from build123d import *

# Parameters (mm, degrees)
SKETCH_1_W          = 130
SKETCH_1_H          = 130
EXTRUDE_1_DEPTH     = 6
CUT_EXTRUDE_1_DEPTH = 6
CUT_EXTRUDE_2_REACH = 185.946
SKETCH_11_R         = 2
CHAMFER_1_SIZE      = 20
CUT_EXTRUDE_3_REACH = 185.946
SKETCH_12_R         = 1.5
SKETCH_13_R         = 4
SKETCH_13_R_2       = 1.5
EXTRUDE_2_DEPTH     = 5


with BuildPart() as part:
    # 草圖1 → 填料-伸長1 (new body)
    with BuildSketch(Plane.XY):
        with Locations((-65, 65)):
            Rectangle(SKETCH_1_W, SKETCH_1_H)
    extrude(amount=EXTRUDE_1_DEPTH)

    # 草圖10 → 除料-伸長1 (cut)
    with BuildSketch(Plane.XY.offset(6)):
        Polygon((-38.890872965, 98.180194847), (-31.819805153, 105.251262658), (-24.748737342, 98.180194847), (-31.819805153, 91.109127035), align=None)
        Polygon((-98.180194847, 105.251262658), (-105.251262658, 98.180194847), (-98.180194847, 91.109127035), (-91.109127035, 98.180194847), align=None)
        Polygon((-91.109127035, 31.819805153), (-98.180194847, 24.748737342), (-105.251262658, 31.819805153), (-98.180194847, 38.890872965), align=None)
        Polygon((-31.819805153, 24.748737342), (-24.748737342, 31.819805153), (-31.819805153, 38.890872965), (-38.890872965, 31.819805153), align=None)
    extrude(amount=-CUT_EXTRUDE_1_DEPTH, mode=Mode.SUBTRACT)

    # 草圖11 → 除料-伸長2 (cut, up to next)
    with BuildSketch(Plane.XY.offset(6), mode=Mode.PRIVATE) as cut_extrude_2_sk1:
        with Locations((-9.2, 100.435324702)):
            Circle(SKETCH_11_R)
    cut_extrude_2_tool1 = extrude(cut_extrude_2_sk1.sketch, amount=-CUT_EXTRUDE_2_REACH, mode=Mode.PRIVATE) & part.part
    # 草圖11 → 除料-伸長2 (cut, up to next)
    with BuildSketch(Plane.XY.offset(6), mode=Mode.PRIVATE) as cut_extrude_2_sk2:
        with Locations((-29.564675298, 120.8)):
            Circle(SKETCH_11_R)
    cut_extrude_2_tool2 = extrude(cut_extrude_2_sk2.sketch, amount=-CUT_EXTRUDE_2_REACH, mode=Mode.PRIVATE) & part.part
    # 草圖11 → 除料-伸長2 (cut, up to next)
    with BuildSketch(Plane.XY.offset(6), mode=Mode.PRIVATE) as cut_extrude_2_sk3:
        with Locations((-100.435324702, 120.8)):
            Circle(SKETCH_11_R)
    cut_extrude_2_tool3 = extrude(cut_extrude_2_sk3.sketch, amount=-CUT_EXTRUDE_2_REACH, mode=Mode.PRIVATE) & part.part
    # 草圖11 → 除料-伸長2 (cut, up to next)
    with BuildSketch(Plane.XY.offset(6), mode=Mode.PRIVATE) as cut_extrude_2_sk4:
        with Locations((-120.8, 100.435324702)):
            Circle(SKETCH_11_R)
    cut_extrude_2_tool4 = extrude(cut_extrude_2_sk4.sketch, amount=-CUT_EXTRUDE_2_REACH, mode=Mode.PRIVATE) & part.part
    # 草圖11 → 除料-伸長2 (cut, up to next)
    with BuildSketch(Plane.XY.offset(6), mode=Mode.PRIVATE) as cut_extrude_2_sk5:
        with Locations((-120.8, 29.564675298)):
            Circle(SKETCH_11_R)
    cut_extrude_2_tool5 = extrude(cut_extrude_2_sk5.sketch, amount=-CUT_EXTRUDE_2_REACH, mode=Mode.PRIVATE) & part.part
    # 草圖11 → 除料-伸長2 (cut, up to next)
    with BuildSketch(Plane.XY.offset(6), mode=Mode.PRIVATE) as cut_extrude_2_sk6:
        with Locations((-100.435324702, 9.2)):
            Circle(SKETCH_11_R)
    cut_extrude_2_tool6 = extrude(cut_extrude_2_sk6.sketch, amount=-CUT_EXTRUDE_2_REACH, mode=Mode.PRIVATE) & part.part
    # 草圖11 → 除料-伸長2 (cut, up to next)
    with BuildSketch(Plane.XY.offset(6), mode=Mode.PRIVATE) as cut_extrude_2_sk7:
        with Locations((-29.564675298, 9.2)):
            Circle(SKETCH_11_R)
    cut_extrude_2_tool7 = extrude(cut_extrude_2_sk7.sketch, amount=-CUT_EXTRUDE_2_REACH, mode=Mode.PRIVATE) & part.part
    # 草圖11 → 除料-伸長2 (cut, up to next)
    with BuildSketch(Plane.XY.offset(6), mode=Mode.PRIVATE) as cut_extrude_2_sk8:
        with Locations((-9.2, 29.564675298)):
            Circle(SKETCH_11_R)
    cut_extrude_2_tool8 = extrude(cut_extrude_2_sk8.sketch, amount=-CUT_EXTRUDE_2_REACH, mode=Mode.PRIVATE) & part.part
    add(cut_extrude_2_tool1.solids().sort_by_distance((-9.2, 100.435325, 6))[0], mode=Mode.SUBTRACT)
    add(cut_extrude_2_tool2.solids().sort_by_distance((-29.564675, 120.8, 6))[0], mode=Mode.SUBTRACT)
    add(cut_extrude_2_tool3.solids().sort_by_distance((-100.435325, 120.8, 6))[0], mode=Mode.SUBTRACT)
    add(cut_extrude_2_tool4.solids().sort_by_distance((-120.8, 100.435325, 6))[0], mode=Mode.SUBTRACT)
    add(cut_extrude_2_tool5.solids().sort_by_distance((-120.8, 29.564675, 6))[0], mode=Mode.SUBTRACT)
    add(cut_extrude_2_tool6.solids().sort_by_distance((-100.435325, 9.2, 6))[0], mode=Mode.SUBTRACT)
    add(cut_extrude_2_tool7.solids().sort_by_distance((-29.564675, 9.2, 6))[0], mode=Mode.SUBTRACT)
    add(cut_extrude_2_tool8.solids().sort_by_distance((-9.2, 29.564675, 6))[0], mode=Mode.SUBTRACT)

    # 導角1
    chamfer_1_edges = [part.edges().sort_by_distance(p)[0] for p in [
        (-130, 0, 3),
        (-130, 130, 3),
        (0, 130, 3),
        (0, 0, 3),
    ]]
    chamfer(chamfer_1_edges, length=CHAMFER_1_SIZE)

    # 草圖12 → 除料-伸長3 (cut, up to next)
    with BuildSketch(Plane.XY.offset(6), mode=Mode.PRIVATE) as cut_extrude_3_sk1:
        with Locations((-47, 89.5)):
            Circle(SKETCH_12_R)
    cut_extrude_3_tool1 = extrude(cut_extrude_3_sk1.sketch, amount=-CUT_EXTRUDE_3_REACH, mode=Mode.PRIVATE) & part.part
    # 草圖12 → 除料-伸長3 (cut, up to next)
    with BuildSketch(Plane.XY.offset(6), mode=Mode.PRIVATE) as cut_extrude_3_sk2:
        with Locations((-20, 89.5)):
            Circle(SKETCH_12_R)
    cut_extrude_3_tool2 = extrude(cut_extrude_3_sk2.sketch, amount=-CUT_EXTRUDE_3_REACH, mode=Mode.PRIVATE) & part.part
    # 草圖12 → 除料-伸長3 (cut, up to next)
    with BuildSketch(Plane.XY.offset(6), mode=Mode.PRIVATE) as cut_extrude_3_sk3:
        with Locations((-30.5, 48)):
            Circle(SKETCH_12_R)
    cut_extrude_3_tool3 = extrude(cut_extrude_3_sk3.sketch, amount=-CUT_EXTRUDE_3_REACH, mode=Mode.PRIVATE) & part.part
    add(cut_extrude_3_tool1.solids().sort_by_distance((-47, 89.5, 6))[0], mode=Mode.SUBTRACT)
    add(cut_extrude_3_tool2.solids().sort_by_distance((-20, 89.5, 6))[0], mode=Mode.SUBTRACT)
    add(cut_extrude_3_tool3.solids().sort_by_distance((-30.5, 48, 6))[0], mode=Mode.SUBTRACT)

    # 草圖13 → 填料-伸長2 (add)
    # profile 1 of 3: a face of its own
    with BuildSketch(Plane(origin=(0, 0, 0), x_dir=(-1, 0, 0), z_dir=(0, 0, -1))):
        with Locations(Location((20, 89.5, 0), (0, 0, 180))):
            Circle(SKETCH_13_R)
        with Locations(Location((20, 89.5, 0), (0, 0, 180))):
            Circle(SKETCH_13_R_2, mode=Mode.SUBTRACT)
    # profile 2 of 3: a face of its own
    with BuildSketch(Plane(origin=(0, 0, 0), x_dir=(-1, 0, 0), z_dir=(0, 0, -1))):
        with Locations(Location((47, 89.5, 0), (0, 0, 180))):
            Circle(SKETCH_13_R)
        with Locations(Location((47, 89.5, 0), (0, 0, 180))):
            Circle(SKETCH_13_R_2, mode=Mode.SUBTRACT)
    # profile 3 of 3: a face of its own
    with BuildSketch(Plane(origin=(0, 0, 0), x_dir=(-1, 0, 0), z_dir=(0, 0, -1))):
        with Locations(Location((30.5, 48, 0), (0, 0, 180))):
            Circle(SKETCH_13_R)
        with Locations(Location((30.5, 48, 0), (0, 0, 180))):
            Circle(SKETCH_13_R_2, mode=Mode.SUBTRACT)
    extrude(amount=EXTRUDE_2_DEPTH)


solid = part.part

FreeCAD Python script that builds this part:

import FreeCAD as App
import Part
import Sketcher

V = App.Vector


def edges_at(feature, points):
    """Names of the edges that pass closest to the given points."""
    edges = feature.Shape.Edges
    near = lambda p: min(range(len(edges)), key=lambda i: edges[i].distToShape(Part.Vertex(*p))[0])
    return sorted({f"Edge{near(p) + 1}" for p in points})

doc = App.newDocument("Part")
params = doc.addObject("Spreadsheet::Sheet", "Params")
for row, (alias, value) in enumerate([
    ("sketch1_width", "130 mm"),
    ("pad1_length", "6 mm"),
    ("sketch2_length", "10 mm"),
    ("pocket1_length", "6 mm"),
    ("sketch3_diameter", "4 mm"),
    ("sketch4_diameter", "4 mm"),
    ("sketch5_diameter", "4 mm"),
    ("sketch6_diameter", "4 mm"),
    ("sketch7_diameter", "4 mm"),
    ("sketch8_diameter", "4 mm"),
    ("sketch9_diameter", "4 mm"),
    ("sketch10_diameter", "4 mm"),
    ("chamfer_size", "20 mm"),
    ("sketch11_diameter", "3 mm"),
    ("sketch12_diameter", "3 mm"),
    ("sketch13_diameter", "3 mm"),
    ("sketch14_diameter", "8 mm"),
    ("sketch14_diameter2", "3 mm"),
    ("pad2_length", "5 mm"),
], start=1):
    params.set(f"A{row}", alias)
    params.set(f"B{row}", "=" + value)
    params.setAlias(f"B{row}", alias)

body = doc.addObject("PartDesign::Body", "Body")

sketch1 = body.newObject("Sketcher::SketchObject", "Sketch")
sketch1.AttachmentSupport = (doc.getObject("XY_Plane"), [""])
sketch1.MapMode = "FlatFace"
sketch1.addGeometry(Part.LineSegment(V(-130, 130, 0), V(-130, 0, 0)), False)
sketch1.addGeometry(Part.LineSegment(V(-130, 0, 0), V(0, 0, 0)), False)
sketch1.addGeometry(Part.LineSegment(V(0, 0, 0), V(0, 130, 0)), False)
sketch1.addGeometry(Part.LineSegment(V(0, 130, 0), V(-130, 130, 0)), False)
sketch1.addConstraint(Sketcher.Constraint("Coincident", 0, 2, 1, 1))
sketch1.addConstraint(Sketcher.Constraint("Coincident", 1, 2, 2, 1))
sketch1.addConstraint(Sketcher.Constraint("Coincident", 2, 2, 3, 1))
sketch1.addConstraint(Sketcher.Constraint("Coincident", 3, 2, 0, 1))
sketch1.addConstraint(Sketcher.Constraint("Vertical", 0))
sketch1.addConstraint(Sketcher.Constraint("Horizontal", 1))
sketch1.addConstraint(Sketcher.Constraint("Vertical", 2))
sketch1.addConstraint(Sketcher.Constraint("Horizontal", 3))
sketch1.addConstraint(Sketcher.Constraint("Coincident", 1, 2, -1, 1))
sketch1.addConstraint(Sketcher.Constraint("Equal", 3, 0))
sketch1.addConstraint(Sketcher.Constraint("DistanceX", 1, 1, 1, 2, 130.0))
sketch1.setExpression("Constraints[10]", "Params.sketch1_width")
pad1 = body.newObject("PartDesign::Pad", "Pad")
pad1.Profile = sketch1
pad1.setExpression("Length", "Params.pad1_length")

sketch2 = body.newObject("Sketcher::SketchObject", "Sketch001")
sketch2.AttachmentSupport = (doc.getObject("XY_Plane"), [""])
sketch2.MapMode = "FlatFace"
sketch2.AttachmentOffset = App.Placement(V(0, 0, 6), App.Rotation())
sketch2.addGeometry(Part.LineSegment(V(-32, 105, 0), V(-39, 98, 0)), False)
sketch2.addGeometry(Part.LineSegment(V(-39, 98, 0), V(-32, 91, 0)), False)
sketch2.addGeometry(Part.LineSegment(V(-32, 91, 0), V(-25, 98, 0)), False)
sketch2.addGeometry(Part.LineSegment(V(-25, 98, 0), V(-32, 105, 0)), False)
sketch2.addGeometry(Part.LineSegment(V(-98, 105, 0), V(-105, 98, 0)), False)
sketch2.addGeometry(Part.LineSegment(V(-105, 98, 0), V(-98, 91, 0)), False)
sketch2.addGeometry(Part.LineSegment(V(-98, 91, 0), V(-91, 98, 0)), False)
sketch2.addGeometry(Part.LineSegment(V(-91, 98, 0), V(-98, 105, 0)), False)
sketch2.addGeometry(Part.LineSegment(V(-98, 25, 0), V(-91, 32, 0)), False)
sketch2.addGeometry(Part.LineSegment(V(-91, 32, 0), V(-98, 39, 0)), False)
sketch2.addGeometry(Part.LineSegment(V(-98, 39, 0), V(-105, 32, 0)), False)
sketch2.addGeometry(Part.LineSegment(V(-105, 32, 0), V(-98, 25, 0)), False)
sketch2.addGeometry(Part.LineSegment(V(-32, 25, 0), V(-25, 32, 0)), False)
sketch2.addGeometry(Part.LineSegment(V(-25, 32, 0), V(-32, 39, 0)), False)
sketch2.addGeometry(Part.LineSegment(V(-32, 39, 0), V(-39, 32, 0)), False)
sketch2.addGeometry(Part.LineSegment(V(-39, 32, 0), V(-32, 25, 0)), False)
sketch2.addConstraint(Sketcher.Constraint("Coincident", 0, 2, 1, 1))
sketch2.addConstraint(Sketcher.Constraint("Coincident", 1, 2, 2, 1))
sketch2.addConstraint(Sketcher.Constraint("Coincident", 2, 2, 3, 1))
sketch2.addConstraint(Sketcher.Constraint("Coincident", 3, 2, 0, 1))
sketch2.addConstraint(Sketcher.Constraint("Coincident", 4, 2, 5, 1))
sketch2.addConstraint(Sketcher.Constraint("Coincident", 5, 2, 6, 1))
sketch2.addConstraint(Sketcher.Constraint("Coincident", 6, 2, 7, 1))
sketch2.addConstraint(Sketcher.Constraint("Coincident", 7, 2, 4, 1))
sketch2.addConstraint(Sketcher.Constraint("Coincident", 8, 2, 9, 1))
sketch2.addConstraint(Sketcher.Constraint("Coincident", 9, 2, 10, 1))
sketch2.addConstraint(Sketcher.Constraint("Coincident", 10, 2, 11, 1))
sketch2.addConstraint(Sketcher.Constraint("Coincident", 11, 2, 8, 1))
sketch2.addConstraint(Sketcher.Constraint("Coincident", 12, 2, 13, 1))
sketch2.addConstraint(Sketcher.Constraint("Coincident", 13, 2, 14, 1))
sketch2.addConstraint(Sketcher.Constraint("Coincident", 14, 2, 15, 1))
sketch2.addConstraint(Sketcher.Constraint("Coincident", 15, 2, 12, 1))
sketch2.addConstraint(Sketcher.Constraint("Perpendicular", 0, 1))
sketch2.addConstraint(Sketcher.Constraint("Perpendicular", 1, 2))
sketch2.addConstraint(Sketcher.Constraint("Perpendicular", 2, 3))
sketch2.addConstraint(Sketcher.Constraint("Perpendicular", 3, 4))
sketch2.addConstraint(Sketcher.Constraint("Perpendicular", 4, 5))
sketch2.addConstraint(Sketcher.Constraint("Perpendicular", 5, 6))
sketch2.addConstraint(Sketcher.Constraint("Perpendicular", 6, 7))
sketch2.addConstraint(Sketcher.Constraint("Perpendicular", 7, 8))
sketch2.addConstraint(Sketcher.Constraint("Perpendicular", 8, 9))
sketch2.addConstraint(Sketcher.Constraint("Perpendicular", 9, 10))
sketch2.addConstraint(Sketcher.Constraint("Perpendicular", 10, 11))
sketch2.addConstraint(Sketcher.Constraint("Perpendicular", 11, 12))
sketch2.addConstraint(Sketcher.Constraint("Perpendicular", 12, 13))
sketch2.addConstraint(Sketcher.Constraint("Perpendicular", 13, 14))
sketch2.addConstraint(Sketcher.Constraint("Perpendicular", 14, 15))
sketch2.addConstraint(Sketcher.Constraint("Horizontal", 0, 2, 2, 2))
sketch2.addConstraint(Sketcher.Constraint("Horizontal", 2, 2, 4, 2))
sketch2.addConstraint(Sketcher.Constraint("Horizontal", 1, 2, 5, 2))
sketch2.addConstraint(Sketcher.Constraint("Horizontal", 4, 2, 6, 2))
sketch2.addConstraint(Sketcher.Constraint("Horizontal", 8, 2, 10, 2))
sketch2.addConstraint(Sketcher.Constraint("Horizontal", 10, 2, 12, 2))
sketch2.addConstraint(Sketcher.Constraint("Horizontal", 9, 2, 13, 2))
sketch2.addConstraint(Sketcher.Constraint("Horizontal", 12, 2, 14, 2))
sketch2.addConstraint(Sketcher.Constraint("Vertical", 1, 2, 3, 2))
sketch2.addConstraint(Sketcher.Constraint("Vertical", 6, 2, 8, 2))
sketch2.addConstraint(Sketcher.Constraint("Vertical", 7, 2, 9, 2))
sketch2.addConstraint(Sketcher.Constraint("Vertical", 2, 2, 12, 2))
sketch2.addConstraint(Sketcher.Constraint("Distance", 0, 10.0))
sketch2.addConstraint(Sketcher.Constraint("DistanceX", 4, 2, 0, 2, 66.36039))
sketch2.addConstraint(Sketcher.Constraint("DistanceY", 8, 2, 5, 2, 59.289322))
sketch2.addConstraint(Sketcher.Constraint("DistanceX", 0, 2, -1, 1, 38.890873))
sketch2.addConstraint(Sketcher.Constraint("DistanceY", -1, 1, 0, 2, 98.180195))
sketch2.setExpression("Constraints[43]", "Params.sketch2_length")
pocket1 = body.newObject("PartDesign::Pocket", "Pocket")
pocket1.Profile = sketch2
pocket1.setExpression("Length", "Params.pocket1_length")

sketch3 = body.newObject("Sketcher::SketchObject", "Sketch002")
sketch3.AttachmentSupport = (doc.getObject("XY_Plane"), [""])
sketch3.MapMode = "FlatFace"
sketch3.AttachmentOffset = App.Placement(V(0, 0, 6), App.Rotation())
sketch3.addGeometry(Part.Circle(V(-9.2, 100.4, 0), V(0, 0, 1), 2), False)
sketch3.addConstraint(Sketcher.Constraint("Diameter", 0, 4.0))
sketch3.addConstraint(Sketcher.Constraint("DistanceX", 0, 3, -1, 1, 9.2))
sketch3.addConstraint(Sketcher.Constraint("DistanceY", -1, 1, 0, 3, 100.435325))
sketch3.setExpression("Constraints[0]", "Params.sketch3_diameter")
pocket2 = body.newObject("PartDesign::Pocket", "Pocket001")
pocket2.Profile = sketch3
pocket2.Type = "UpToFirst"

sketch4 = body.newObject("Sketcher::SketchObject", "Sketch003")
sketch4.AttachmentSupport = (doc.getObject("XY_Plane"), [""])
sketch4.MapMode = "FlatFace"
sketch4.AttachmentOffset = App.Placement(V(0, 0, 6), App.Rotation())
sketch4.addGeometry(Part.Circle(V(-29.6, 120.8, 0), V(0, 0, 1), 2), False)
sketch4.addConstraint(Sketcher.Constraint("Diameter", 0, 4.0))
sketch4.addConstraint(Sketcher.Constraint("DistanceY", -1, 1, 0, 3, 120.8))
sketch4.addConstraint(Sketcher.Constraint("DistanceX", 0, 3, -1, 1, 29.564675))
sketch4.setExpression("Constraints[0]", "Params.sketch4_diameter")
pocket3 = body.newObject("PartDesign::Pocket", "Pocket002")
pocket3.Profile = sketch4
pocket3.Type = "UpToFirst"

sketch5 = body.newObject("Sketcher::SketchObject", "Sketch004")
sketch5.AttachmentSupport = (doc.getObject("XY_Plane"), [""])
sketch5.MapMode = "FlatFace"
sketch5.AttachmentOffset = App.Placement(V(0, 0, 6), App.Rotation())
sketch5.addGeometry(Part.Circle(V(-100.4, 120.8, 0), V(0, 0, 1), 2), False)
sketch5.addConstraint(Sketcher.Constraint("Diameter", 0, 4.0))
sketch5.addConstraint(Sketcher.Constraint("DistanceY", -1, 1, 0, 3, 120.8))
sketch5.addConstraint(Sketcher.Constraint("DistanceX", 0, 3, -1, 1, 100.435325))
sketch5.setExpression("Constraints[0]", "Params.sketch5_diameter")
pocket4 = body.newObject("PartDesign::Pocket", "Pocket003")
pocket4.Profile = sketch5
pocket4.Type = "UpToFirst"

sketch6 = body.newObject("Sketcher::SketchObject", "Sketch005")
sketch6.AttachmentSupport = (doc.getObject("XY_Plane"), [""])
sketch6.MapMode = "FlatFace"
sketch6.AttachmentOffset = App.Placement(V(0, 0, 6), App.Rotation())
sketch6.addGeometry(Part.Circle(V(-120.8, 100.4, 0), V(0, 0, 1), 2), False)
sketch6.addConstraint(Sketcher.Constraint("Diameter", 0, 4.0))
sketch6.addConstraint(Sketcher.Constraint("DistanceX", 0, 3, -1, 1, 120.8))
sketch6.addConstraint(Sketcher.Constraint("DistanceY", -1, 1, 0, 3, 100.435325))
sketch6.setExpression("Constraints[0]", "Params.sketch6_diameter")
pocket5 = body.newObject("PartDesign::Pocket", "Pocket004")
pocket5.Profile = sketch6
pocket5.Type = "UpToFirst"

sketch7 = body.newObject("Sketcher::SketchObject", "Sketch006")
sketch7.AttachmentSupport = (doc.getObject("XY_Plane"), [""])
sketch7.MapMode = "FlatFace"
sketch7.AttachmentOffset = App.Placement(V(0, 0, 6), App.Rotation())
sketch7.addGeometry(Part.Circle(V(-120.8, 29.6, 0), V(0, 0, 1), 2), False)
sketch7.addConstraint(Sketcher.Constraint("Diameter", 0, 4.0))
sketch7.addConstraint(Sketcher.Constraint("DistanceX", 0, 3, -1, 1, 120.8))
sketch7.addConstraint(Sketcher.Constraint("DistanceY", -1, 1, 0, 3, 29.564675))
sketch7.setExpression("Constraints[0]", "Params.sketch7_diameter")
pocket6 = body.newObject("PartDesign::Pocket", "Pocket005")
pocket6.Profile = sketch7
pocket6.Type = "UpToFirst"

sketch8 = body.newObject("Sketcher::SketchObject", "Sketch007")
sketch8.AttachmentSupport = (doc.getObject("XY_Plane"), [""])
sketch8.MapMode = "FlatFace"
sketch8.AttachmentOffset = App.Placement(V(0, 0, 6), App.Rotation())
sketch8.addGeometry(Part.Circle(V(-100.4, 9.2, 0), V(0, 0, 1), 2), False)
sketch8.addConstraint(Sketcher.Constraint("Diameter", 0, 4.0))
sketch8.addConstraint(Sketcher.Constraint("DistanceY", -1, 1, 0, 3, 9.2))
sketch8.addConstraint(Sketcher.Constraint("DistanceX", 0, 3, -1, 1, 100.435325))
sketch8.setExpression("Constraints[0]", "Params.sketch8_diameter")
pocket7 = body.newObject("PartDesign::Pocket", "Pocket006")
pocket7.Profile = sketch8
pocket7.Type = "UpToFirst"

sketch9 = body.newObject("Sketcher::SketchObject", "Sketch008")
sketch9.AttachmentSupport = (doc.getObject("XY_Plane"), [""])
sketch9.MapMode = "FlatFace"
sketch9.AttachmentOffset = App.Placement(V(0, 0, 6), App.Rotation())
sketch9.addGeometry(Part.Circle(V(-29.6, 9.2, 0), V(0, 0, 1), 2), False)
sketch9.addConstraint(Sketcher.Constraint("Diameter", 0, 4.0))
sketch9.addConstraint(Sketcher.Constraint("DistanceY", -1, 1, 0, 3, 9.2))
sketch9.addConstraint(Sketcher.Constraint("DistanceX", 0, 3, -1, 1, 29.564675))
sketch9.setExpression("Constraints[0]", "Params.sketch9_diameter")
pocket8 = body.newObject("PartDesign::Pocket", "Pocket007")
pocket8.Profile = sketch9
pocket8.Type = "UpToFirst"

sketch10 = body.newObject("Sketcher::SketchObject", "Sketch009")
sketch10.AttachmentSupport = (doc.getObject("XY_Plane"), [""])
sketch10.MapMode = "FlatFace"
sketch10.AttachmentOffset = App.Placement(V(0, 0, 6), App.Rotation())
sketch10.addGeometry(Part.Circle(V(-9.2, 29.6, 0), V(0, 0, 1), 2), False)
sketch10.addConstraint(Sketcher.Constraint("Diameter", 0, 4.0))
sketch10.addConstraint(Sketcher.Constraint("DistanceX", 0, 3, -1, 1, 9.2))
sketch10.addConstraint(Sketcher.Constraint("DistanceY", -1, 1, 0, 3, 29.564675))
sketch10.setExpression("Constraints[0]", "Params.sketch10_diameter")
pocket9 = body.newObject("PartDesign::Pocket", "Pocket008")
pocket9.Profile = sketch10
pocket9.Type = "UpToFirst"
doc.recompute()

chamfer = body.newObject("PartDesign::Chamfer", "Chamfer")
chamfer.Base = (pocket9, edges_at(pocket9, [
    (-130, 0, 3),
    (-130, 130, 3),
    (0, 130, 3),
    (0, 0, 3),
]))
chamfer.setExpression("Size", "Params.chamfer_size")

sketch11 = body.newObject("Sketcher::SketchObject", "Sketch010")
sketch11.AttachmentSupport = (doc.getObject("XY_Plane"), [""])
sketch11.MapMode = "FlatFace"
sketch11.AttachmentOffset = App.Placement(V(0, 0, 6), App.Rotation())
sketch11.addGeometry(Part.Circle(V(-47, 89.5, 0), V(0, 0, 1), 1.5), False)
sketch11.addConstraint(Sketcher.Constraint("Diameter", 0, 3.0))
sketch11.addConstraint(Sketcher.Constraint("DistanceX", 0, 3, -1, 1, 47.0))
sketch11.addConstraint(Sketcher.Constraint("DistanceY", -1, 1, 0, 3, 89.5))
sketch11.setExpression("Constraints[0]", "Params.sketch11_diameter")
pocket10 = body.newObject("PartDesign::Pocket", "Pocket009")
pocket10.Profile = sketch11
pocket10.Type = "UpToFirst"

sketch12 = body.newObject("Sketcher::SketchObject", "Sketch011")
sketch12.AttachmentSupport = (doc.getObject("XY_Plane"), [""])
sketch12.MapMode = "FlatFace"
sketch12.AttachmentOffset = App.Placement(V(0, 0, 6), App.Rotation())
sketch12.addGeometry(Part.Circle(V(-20, 89.5, 0), V(0, 0, 1), 1.5), False)
sketch12.addConstraint(Sketcher.Constraint("Diameter", 0, 3.0))
sketch12.addConstraint(Sketcher.Constraint("DistanceX", 0, 3, -1, 1, 20.0))
sketch12.addConstraint(Sketcher.Constraint("DistanceY", -1, 1, 0, 3, 89.5))
sketch12.setExpression("Constraints[0]", "Params.sketch12_diameter")
pocket11 = body.newObject("PartDesign::Pocket", "Pocket010")
pocket11.Profile = sketch12
pocket11.Type = "UpToFirst"

sketch13 = body.newObject("Sketcher::SketchObject", "Sketch012")
sketch13.AttachmentSupport = (doc.getObject("XY_Plane"), [""])
sketch13.MapMode = "FlatFace"
sketch13.AttachmentOffset = App.Placement(V(0, 0, 6), App.Rotation())
sketch13.addGeometry(Part.Circle(V(-30.5, 48, 0), V(0, 0, 1), 1.5), False)
sketch13.addConstraint(Sketcher.Constraint("Diameter", 0, 3.0))
sketch13.addConstraint(Sketcher.Constraint("DistanceY", -1, 1, 0, 3, 48.0))
sketch13.addConstraint(Sketcher.Constraint("DistanceX", 0, 3, -1, 1, 30.5))
sketch13.setExpression("Constraints[0]", "Params.sketch13_diameter")
pocket12 = body.newObject("PartDesign::Pocket", "Pocket011")
pocket12.Profile = sketch13
pocket12.Type = "UpToFirst"

sketch14 = body.newObject("Sketcher::SketchObject", "Sketch013")
sketch14.AttachmentSupport = (doc.getObject("XY_Plane"), [""])
sketch14.MapMode = "FlatFace"
sketch14.addGeometry(Part.Circle(V(-20, 89.5, 0), V(0, 0, 1), 4), False)
sketch14.addGeometry(Part.Circle(V(-20, 89.5, 0), V(0, 0, 1), 1.5), False)
sketch14.addGeometry(Part.Circle(V(-47, 89.5, 0), V(0, 0, 1), 4), False)
sketch14.addGeometry(Part.Circle(V(-47, 89.5, 0), V(0, 0, 1), 1.5), False)
sketch14.addGeometry(Part.Circle(V(-30.5, 48, 0), V(0, 0, 1), 4), False)
sketch14.addGeometry(Part.Circle(V(-30.5, 48, 0), V(0, 0, 1), 1.5), False)
sketch14.addConstraint(Sketcher.Constraint("Coincident", 1, 3, 0, 3))
sketch14.addConstraint(Sketcher.Constraint("Coincident", 3, 3, 2, 3))
sketch14.addConstraint(Sketcher.Constraint("Coincident", 5, 3, 4, 3))
sketch14.addConstraint(Sketcher.Constraint("Equal", 0, 2))
sketch14.addConstraint(Sketcher.Constraint("Equal", 1, 3))
sketch14.addConstraint(Sketcher.Constraint("Equal", 2, 4))
sketch14.addConstraint(Sketcher.Constraint("Equal", 3, 5))
sketch14.addConstraint(Sketcher.Constraint("Horizontal", 1, 3, 2, 3))
sketch14.addConstraint(Sketcher.Constraint("Diameter", 0, 8.0))
sketch14.addConstraint(Sketcher.Constraint("Diameter", 1, 3.0))
sketch14.addConstraint(Sketcher.Constraint("DistanceX", 0, 3, -1, 1, 20.0))
sketch14.addConstraint(Sketcher.Constraint("DistanceX", 2, 3, -1, 1, 47.0))
sketch14.addConstraint(Sketcher.Constraint("DistanceY", -1, 1, 4, 3, 48.0))
sketch14.addConstraint(Sketcher.Constraint("DistanceY", -1, 1, 0, 3, 89.5))
sketch14.addConstraint(Sketcher.Constraint("DistanceX", 4, 3, -1, 1, 30.5))
sketch14.setExpression("Constraints[8]", "Params.sketch14_diameter")
sketch14.setExpression("Constraints[9]", "Params.sketch14_diameter2")
pad2 = body.newObject("PartDesign::Pad", "Pad001")
pad2.Profile = sketch14
pad2.setExpression("Length", "Params.pad2_length")
pad2.Reversed = True

doc.recompute()
